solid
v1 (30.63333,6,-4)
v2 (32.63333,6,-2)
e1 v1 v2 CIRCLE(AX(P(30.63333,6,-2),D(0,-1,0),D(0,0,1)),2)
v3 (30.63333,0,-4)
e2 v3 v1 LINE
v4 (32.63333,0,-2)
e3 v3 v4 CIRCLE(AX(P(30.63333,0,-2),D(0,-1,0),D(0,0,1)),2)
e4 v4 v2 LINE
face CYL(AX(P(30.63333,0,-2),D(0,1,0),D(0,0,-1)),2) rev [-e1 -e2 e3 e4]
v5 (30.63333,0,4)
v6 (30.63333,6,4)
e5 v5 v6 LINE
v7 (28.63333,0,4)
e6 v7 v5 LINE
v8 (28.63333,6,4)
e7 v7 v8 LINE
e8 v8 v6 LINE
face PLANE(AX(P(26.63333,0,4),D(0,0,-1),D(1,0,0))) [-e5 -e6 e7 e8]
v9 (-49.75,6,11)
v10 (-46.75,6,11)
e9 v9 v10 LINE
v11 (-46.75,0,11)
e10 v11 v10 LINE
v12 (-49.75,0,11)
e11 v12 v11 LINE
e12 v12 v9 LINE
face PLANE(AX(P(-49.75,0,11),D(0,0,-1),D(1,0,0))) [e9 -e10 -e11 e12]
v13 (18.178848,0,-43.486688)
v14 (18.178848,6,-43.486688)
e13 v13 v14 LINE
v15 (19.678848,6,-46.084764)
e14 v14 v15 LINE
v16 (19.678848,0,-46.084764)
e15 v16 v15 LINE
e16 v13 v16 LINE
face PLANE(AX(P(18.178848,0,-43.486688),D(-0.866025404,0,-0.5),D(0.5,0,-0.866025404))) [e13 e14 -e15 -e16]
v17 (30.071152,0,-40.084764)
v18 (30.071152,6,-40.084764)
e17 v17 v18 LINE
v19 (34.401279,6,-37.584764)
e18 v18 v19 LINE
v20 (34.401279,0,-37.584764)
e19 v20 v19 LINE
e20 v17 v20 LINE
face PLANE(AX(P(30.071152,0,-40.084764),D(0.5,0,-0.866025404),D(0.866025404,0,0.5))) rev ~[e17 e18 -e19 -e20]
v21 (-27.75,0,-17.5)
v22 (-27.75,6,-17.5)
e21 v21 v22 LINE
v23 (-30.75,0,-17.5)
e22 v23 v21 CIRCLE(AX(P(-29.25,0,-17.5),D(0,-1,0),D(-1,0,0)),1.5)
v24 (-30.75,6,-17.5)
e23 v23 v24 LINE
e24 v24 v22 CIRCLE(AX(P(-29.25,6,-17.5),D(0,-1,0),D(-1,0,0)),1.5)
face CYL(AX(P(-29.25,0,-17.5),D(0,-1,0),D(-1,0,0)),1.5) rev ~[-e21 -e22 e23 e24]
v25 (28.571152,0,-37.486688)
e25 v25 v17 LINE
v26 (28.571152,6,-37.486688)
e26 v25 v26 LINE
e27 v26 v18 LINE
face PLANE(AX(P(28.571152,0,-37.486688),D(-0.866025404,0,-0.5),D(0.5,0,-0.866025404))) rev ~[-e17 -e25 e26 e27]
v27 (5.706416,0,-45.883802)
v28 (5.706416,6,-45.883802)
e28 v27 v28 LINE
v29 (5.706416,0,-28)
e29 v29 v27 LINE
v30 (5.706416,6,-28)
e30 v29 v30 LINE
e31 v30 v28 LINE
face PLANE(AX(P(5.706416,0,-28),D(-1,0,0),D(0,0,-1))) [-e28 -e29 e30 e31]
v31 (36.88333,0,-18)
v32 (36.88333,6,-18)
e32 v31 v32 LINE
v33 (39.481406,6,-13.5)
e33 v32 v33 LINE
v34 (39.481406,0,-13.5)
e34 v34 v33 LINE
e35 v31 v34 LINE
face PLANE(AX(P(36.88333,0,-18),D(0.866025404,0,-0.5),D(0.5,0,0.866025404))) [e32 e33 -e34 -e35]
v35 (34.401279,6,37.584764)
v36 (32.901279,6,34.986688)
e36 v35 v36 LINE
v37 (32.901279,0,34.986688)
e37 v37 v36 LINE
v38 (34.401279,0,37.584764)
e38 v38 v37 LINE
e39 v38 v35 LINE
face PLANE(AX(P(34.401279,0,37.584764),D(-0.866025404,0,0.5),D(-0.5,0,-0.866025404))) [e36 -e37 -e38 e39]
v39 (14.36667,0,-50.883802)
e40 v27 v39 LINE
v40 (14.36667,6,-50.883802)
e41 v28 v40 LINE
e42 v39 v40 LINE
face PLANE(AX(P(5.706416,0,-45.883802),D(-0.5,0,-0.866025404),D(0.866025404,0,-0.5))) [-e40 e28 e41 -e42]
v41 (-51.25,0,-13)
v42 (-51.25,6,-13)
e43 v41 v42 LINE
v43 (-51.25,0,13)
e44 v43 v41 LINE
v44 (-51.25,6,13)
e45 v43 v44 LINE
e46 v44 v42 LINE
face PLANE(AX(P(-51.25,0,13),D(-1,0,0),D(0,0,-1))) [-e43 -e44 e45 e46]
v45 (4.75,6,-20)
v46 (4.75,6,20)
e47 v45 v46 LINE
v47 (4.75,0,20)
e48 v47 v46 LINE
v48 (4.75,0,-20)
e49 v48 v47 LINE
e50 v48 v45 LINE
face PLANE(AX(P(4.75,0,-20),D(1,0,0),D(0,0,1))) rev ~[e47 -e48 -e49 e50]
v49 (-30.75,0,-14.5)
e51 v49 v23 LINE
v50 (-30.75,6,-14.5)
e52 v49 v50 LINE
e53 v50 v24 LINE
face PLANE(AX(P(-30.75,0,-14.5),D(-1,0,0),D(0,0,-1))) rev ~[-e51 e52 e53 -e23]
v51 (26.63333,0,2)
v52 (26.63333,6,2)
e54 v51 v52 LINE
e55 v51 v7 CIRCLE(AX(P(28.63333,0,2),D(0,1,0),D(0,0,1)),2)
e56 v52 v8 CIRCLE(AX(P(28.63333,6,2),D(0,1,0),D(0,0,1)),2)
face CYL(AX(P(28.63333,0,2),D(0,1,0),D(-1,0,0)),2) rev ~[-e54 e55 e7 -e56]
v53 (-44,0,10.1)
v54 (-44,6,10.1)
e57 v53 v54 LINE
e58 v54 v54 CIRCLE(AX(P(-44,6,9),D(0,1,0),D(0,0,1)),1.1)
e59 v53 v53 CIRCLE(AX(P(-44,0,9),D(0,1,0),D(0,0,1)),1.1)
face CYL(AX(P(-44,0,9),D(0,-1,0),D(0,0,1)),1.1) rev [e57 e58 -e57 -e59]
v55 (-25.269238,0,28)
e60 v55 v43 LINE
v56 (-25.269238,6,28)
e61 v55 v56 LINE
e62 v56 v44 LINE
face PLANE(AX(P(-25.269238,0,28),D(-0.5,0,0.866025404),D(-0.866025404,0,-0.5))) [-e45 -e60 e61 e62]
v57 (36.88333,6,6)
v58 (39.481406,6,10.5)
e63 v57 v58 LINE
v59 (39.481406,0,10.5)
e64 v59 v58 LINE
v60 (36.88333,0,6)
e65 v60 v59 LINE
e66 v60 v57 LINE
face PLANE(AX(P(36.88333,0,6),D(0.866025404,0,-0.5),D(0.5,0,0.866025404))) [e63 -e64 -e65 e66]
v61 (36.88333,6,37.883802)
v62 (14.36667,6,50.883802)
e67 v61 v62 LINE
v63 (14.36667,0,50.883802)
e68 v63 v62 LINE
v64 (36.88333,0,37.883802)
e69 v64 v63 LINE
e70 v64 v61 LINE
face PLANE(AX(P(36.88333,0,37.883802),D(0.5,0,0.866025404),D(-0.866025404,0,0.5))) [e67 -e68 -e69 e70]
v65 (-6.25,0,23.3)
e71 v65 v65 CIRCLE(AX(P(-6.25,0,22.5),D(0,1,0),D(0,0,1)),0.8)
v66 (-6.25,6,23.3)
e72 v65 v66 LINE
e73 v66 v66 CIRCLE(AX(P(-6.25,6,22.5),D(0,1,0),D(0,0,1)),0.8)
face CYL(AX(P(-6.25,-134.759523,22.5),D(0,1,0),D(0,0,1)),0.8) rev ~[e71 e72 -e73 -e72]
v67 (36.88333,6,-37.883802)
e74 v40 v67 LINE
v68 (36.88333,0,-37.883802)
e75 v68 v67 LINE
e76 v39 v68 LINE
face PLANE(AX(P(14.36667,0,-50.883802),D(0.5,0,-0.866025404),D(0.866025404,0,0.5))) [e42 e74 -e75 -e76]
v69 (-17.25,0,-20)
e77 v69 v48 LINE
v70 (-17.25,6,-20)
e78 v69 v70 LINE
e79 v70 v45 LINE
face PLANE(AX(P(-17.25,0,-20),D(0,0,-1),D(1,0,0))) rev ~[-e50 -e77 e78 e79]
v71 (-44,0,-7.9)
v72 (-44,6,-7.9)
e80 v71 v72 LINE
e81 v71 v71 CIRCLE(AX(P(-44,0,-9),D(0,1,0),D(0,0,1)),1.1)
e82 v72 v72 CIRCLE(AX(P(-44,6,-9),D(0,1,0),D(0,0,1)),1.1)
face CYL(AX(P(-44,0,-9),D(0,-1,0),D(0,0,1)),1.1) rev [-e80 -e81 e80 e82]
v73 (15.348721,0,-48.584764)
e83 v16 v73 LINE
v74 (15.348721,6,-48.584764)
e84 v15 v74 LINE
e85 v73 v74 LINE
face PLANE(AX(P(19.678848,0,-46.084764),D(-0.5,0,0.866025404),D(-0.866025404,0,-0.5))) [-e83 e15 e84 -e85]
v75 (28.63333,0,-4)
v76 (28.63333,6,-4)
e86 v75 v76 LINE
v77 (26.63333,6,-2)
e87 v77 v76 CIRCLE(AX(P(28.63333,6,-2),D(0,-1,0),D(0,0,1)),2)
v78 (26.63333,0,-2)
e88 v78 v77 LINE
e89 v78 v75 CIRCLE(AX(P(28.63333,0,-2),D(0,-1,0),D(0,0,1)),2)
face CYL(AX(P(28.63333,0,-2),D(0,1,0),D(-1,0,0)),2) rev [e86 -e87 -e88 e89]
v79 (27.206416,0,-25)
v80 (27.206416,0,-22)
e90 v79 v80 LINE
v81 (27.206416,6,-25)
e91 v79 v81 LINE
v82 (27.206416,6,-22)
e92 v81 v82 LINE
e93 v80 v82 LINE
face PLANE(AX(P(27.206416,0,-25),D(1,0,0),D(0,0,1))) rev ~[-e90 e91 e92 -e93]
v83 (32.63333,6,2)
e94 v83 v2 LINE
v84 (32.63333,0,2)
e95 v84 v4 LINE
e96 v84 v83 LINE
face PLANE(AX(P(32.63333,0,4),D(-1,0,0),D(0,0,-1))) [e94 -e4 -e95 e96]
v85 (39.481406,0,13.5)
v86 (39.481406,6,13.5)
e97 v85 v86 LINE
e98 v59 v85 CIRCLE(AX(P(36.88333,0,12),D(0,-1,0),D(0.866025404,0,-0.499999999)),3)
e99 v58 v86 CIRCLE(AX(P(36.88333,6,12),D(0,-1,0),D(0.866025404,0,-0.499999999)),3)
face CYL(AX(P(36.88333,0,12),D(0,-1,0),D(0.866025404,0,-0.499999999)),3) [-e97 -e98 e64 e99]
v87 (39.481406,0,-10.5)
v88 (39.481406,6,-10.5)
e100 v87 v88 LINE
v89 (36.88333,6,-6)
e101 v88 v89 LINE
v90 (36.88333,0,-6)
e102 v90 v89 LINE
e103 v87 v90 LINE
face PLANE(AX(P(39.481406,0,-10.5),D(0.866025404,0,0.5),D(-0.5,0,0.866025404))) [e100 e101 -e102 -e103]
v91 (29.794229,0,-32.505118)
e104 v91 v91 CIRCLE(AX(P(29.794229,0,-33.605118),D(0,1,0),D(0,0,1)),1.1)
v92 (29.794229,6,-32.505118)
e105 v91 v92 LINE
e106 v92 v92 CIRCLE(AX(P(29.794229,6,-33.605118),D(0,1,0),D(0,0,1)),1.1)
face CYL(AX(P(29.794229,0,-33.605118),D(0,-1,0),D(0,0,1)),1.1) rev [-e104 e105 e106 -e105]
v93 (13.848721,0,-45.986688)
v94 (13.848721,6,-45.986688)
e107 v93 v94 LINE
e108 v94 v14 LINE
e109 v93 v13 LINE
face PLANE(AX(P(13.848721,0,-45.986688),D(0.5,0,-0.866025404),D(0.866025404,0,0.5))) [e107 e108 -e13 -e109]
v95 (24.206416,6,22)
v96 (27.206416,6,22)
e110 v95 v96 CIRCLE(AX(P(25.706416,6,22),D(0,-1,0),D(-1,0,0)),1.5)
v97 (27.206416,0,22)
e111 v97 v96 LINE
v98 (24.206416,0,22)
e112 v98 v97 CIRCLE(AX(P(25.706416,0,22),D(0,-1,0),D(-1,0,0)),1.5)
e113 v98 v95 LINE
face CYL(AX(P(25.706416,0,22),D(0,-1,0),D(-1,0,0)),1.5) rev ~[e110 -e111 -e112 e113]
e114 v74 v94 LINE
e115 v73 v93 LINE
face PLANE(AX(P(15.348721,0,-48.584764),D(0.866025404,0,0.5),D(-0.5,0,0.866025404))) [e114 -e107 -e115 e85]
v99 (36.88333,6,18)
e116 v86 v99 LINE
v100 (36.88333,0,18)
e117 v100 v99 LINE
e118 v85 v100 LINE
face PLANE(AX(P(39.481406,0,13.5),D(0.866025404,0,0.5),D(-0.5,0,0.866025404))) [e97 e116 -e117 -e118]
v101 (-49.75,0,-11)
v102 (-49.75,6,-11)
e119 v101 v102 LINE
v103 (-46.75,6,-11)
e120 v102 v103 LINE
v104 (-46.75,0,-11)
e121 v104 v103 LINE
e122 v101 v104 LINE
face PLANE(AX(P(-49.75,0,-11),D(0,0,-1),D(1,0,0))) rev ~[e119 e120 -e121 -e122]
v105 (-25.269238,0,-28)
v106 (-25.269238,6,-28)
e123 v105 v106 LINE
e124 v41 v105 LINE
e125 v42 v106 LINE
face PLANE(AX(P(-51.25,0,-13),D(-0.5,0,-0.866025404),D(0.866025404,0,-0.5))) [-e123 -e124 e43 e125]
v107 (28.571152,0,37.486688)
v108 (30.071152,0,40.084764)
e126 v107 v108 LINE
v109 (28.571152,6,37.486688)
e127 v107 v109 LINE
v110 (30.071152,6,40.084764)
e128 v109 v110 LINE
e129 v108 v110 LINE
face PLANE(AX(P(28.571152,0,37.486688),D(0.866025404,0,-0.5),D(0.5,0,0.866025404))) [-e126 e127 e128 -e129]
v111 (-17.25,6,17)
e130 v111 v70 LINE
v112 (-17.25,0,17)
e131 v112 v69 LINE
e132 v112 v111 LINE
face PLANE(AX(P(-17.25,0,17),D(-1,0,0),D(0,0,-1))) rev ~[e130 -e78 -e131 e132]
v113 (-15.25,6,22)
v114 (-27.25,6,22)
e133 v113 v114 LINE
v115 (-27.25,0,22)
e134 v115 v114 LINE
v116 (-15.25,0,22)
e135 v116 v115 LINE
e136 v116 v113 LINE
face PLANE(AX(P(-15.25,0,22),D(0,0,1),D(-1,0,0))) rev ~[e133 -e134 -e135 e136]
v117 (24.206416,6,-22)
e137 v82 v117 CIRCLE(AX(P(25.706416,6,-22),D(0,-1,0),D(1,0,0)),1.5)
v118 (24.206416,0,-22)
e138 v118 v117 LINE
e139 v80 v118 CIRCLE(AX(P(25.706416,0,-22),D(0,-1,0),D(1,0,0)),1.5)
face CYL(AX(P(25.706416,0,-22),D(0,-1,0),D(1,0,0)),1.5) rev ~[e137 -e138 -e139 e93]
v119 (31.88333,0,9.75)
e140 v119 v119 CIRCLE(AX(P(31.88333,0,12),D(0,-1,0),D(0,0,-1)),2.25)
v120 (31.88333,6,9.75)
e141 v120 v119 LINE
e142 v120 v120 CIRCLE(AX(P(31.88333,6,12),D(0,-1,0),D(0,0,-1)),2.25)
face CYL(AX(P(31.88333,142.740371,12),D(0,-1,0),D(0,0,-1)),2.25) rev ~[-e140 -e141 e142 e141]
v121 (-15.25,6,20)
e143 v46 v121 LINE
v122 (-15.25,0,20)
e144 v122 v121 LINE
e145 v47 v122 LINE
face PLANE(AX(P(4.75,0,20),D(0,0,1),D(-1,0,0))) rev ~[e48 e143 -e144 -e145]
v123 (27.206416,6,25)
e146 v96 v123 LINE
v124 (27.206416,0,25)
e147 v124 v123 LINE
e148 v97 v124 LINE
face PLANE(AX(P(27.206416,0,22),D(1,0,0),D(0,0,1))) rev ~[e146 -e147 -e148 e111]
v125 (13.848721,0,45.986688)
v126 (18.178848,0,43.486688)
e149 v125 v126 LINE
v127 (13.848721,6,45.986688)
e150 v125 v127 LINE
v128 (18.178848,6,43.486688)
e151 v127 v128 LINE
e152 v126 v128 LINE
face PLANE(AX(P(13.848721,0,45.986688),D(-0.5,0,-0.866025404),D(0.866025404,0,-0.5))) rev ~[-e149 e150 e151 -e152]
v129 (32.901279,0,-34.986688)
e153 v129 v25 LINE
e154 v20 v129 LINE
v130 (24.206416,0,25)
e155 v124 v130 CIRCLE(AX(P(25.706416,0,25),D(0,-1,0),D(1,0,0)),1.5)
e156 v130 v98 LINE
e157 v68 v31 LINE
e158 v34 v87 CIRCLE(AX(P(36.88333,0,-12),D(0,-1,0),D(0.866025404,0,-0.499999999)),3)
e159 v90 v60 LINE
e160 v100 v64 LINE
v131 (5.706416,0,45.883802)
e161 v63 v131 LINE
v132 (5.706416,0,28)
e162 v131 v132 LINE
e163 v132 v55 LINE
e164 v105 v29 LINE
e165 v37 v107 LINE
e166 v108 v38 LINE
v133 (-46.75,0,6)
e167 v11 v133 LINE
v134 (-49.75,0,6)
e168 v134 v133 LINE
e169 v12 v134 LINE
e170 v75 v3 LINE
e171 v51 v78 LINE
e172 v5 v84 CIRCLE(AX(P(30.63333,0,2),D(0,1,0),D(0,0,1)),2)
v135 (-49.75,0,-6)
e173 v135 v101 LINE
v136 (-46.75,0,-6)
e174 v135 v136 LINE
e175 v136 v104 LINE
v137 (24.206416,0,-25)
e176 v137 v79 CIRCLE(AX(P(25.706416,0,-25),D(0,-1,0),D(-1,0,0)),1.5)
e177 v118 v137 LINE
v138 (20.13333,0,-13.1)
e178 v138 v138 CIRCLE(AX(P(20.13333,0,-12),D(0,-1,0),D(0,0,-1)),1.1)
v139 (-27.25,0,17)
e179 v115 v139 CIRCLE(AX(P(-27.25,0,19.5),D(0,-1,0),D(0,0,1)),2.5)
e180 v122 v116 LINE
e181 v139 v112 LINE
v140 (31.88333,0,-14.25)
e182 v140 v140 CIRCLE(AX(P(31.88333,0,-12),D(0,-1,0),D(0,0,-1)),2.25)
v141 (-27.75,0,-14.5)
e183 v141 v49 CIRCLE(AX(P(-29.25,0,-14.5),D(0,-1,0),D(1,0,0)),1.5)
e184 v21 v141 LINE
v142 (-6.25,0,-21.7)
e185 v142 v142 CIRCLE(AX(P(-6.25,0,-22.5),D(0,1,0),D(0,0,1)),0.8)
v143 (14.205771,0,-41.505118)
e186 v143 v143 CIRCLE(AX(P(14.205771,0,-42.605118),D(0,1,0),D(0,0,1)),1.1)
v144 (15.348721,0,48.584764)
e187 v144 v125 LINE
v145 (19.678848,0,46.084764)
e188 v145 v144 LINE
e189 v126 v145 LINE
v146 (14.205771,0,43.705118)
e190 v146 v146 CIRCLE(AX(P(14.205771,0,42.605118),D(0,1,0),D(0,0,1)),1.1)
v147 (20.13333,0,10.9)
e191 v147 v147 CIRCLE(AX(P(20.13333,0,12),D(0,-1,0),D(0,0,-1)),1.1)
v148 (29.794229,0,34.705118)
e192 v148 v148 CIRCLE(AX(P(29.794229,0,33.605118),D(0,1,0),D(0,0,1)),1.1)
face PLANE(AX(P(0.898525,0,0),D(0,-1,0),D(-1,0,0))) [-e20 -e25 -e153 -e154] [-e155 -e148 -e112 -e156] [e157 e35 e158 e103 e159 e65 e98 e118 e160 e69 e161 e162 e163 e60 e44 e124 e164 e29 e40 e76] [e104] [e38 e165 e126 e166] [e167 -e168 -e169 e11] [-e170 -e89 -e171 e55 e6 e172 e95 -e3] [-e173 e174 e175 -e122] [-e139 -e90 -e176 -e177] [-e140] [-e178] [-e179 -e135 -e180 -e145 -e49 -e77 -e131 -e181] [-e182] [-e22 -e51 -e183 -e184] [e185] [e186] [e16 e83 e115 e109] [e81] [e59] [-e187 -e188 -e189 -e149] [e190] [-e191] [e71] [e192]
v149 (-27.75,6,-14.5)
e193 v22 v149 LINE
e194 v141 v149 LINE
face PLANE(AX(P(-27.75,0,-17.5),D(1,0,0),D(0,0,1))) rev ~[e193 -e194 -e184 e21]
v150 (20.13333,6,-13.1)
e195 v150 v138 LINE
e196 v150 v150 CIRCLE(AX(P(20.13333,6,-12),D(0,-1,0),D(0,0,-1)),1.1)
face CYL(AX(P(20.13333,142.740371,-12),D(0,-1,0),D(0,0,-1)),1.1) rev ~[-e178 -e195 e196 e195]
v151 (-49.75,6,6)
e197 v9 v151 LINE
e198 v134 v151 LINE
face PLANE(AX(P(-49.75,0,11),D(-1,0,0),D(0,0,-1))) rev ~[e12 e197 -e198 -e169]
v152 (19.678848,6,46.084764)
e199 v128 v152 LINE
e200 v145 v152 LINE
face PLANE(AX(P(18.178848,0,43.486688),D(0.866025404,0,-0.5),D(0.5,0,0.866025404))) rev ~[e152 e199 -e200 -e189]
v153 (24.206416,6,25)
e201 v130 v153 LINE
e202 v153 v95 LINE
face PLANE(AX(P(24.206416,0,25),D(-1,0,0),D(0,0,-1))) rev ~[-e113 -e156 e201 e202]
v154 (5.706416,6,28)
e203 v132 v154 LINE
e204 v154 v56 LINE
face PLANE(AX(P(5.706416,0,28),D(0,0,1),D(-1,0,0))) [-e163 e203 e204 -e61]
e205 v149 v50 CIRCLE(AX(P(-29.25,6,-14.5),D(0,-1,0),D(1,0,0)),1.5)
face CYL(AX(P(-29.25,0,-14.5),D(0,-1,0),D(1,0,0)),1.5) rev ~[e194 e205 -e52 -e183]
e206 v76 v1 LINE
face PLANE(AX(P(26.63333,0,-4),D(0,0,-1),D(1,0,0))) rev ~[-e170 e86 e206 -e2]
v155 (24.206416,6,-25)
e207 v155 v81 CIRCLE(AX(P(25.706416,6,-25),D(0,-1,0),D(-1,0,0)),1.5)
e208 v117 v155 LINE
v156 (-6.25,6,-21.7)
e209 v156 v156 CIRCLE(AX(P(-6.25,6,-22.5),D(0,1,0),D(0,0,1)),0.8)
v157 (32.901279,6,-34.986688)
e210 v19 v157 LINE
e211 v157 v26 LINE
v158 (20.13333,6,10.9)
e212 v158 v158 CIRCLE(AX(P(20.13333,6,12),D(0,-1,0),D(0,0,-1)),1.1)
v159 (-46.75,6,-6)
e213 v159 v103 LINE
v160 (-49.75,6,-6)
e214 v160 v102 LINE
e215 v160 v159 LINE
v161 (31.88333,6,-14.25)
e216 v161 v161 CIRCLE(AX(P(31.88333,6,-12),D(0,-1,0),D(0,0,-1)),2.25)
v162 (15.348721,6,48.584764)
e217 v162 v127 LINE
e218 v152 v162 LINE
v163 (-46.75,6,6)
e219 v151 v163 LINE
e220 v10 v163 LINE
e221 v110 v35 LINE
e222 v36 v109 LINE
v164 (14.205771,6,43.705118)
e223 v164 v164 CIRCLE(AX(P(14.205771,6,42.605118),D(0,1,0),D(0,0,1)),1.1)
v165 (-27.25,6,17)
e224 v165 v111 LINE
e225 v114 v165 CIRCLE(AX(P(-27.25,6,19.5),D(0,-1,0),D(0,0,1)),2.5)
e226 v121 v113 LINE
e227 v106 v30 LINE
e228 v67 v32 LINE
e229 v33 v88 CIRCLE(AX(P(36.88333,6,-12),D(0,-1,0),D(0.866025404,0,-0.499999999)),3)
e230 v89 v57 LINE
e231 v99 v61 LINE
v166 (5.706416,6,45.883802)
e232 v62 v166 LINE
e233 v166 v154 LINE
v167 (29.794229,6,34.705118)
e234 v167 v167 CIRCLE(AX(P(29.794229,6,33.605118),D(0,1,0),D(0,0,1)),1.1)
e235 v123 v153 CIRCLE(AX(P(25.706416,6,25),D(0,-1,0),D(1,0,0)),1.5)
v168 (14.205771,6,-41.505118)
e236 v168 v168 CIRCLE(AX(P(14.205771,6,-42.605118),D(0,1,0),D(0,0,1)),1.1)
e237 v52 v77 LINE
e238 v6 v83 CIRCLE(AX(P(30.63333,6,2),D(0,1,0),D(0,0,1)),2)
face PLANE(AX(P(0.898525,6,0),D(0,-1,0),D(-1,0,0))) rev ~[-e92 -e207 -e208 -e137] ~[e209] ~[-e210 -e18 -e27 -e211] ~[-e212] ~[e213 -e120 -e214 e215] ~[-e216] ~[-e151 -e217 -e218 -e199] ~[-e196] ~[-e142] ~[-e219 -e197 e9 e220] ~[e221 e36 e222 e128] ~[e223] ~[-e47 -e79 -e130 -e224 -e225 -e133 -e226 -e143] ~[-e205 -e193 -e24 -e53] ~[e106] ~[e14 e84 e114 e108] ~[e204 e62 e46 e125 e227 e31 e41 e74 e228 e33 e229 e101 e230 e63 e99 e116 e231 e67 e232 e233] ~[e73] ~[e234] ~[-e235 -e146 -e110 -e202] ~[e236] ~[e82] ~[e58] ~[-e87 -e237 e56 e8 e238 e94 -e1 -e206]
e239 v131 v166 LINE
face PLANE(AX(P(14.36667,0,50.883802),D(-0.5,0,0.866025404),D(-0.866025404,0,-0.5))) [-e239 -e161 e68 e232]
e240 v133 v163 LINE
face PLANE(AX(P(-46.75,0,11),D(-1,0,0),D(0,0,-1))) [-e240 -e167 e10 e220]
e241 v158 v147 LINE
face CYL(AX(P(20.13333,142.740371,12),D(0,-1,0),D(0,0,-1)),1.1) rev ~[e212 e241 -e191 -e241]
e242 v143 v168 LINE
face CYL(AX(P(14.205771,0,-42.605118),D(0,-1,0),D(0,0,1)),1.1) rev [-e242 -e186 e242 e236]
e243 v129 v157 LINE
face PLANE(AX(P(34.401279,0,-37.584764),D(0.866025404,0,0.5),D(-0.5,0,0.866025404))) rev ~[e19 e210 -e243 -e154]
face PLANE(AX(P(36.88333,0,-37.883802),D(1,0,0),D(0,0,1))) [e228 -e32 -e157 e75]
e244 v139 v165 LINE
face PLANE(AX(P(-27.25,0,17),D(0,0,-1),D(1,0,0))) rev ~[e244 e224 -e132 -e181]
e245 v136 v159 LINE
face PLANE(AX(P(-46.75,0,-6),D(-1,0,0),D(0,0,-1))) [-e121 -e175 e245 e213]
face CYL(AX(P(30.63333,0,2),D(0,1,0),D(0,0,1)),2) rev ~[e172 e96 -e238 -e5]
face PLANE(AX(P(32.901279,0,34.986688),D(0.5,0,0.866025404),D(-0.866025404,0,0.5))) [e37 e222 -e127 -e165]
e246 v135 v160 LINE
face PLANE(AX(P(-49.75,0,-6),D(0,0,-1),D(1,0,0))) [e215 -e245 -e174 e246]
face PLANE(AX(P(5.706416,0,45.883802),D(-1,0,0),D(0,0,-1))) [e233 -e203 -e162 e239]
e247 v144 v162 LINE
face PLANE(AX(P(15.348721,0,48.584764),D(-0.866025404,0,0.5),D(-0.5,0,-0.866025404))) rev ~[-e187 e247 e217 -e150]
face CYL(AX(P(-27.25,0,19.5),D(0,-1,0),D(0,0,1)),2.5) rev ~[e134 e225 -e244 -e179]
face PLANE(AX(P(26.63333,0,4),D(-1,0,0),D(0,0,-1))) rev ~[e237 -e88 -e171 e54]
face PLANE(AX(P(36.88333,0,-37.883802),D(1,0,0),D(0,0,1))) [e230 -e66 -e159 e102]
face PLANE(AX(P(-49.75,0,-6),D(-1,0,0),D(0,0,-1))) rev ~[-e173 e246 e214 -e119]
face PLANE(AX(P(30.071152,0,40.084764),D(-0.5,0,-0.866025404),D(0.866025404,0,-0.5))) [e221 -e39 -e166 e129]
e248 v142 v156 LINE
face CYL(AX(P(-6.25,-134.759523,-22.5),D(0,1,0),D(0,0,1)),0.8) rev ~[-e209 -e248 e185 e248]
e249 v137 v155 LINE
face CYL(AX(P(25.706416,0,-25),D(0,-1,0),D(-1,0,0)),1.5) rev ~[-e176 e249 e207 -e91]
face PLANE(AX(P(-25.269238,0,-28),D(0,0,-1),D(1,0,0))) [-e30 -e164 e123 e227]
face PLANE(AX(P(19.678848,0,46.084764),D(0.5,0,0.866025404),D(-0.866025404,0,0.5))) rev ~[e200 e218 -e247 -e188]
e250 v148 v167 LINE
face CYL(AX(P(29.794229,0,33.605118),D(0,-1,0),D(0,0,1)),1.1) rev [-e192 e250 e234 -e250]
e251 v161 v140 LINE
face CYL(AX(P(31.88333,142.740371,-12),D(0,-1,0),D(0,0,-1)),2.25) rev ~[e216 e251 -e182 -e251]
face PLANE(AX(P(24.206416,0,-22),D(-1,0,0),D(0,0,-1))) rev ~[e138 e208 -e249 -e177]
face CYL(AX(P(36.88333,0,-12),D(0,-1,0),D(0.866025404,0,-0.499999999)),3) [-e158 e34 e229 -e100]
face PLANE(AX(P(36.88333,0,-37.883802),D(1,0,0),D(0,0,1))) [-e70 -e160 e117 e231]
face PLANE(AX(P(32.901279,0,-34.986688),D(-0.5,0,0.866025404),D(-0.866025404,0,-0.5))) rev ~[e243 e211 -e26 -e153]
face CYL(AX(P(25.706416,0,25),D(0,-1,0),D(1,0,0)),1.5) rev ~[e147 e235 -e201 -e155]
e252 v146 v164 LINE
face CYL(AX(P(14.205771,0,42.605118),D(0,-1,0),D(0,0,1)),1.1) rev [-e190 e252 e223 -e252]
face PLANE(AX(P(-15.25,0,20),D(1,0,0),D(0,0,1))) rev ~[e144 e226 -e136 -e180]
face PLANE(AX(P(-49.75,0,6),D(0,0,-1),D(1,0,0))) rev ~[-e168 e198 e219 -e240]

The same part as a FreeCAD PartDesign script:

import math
import FreeCAD as App
import Part
import Sketcher
Q = App.Units.Quantity


def edges_at(feature, points):
    """Names of the edges that pass closest to the given points."""
    edges = feature.Shape.Edges
    near = lambda p: min(range(len(edges)), key=lambda i: edges[i].distToShape(Part.Vertex(*p))[0])
    return sorted({f"Edge{near(p) + 1}" for p in points})

doc = App.newDocument("Part")
params = doc.addObject("Spreadsheet::Sheet", "Params")
for row, (alias, value) in enumerate([
    ("sketch1_diameter", "2.2 mm"),
    ("sketch1_radius", "1.5 mm"),
    ("sketch1_radius2", "2.5 mm"),
    ("sketch1_width", "20 mm"),
    ("sketch1_width2", "12 mm"),
    ("pad1_length", "6 mm"),
    ("sketch2_diameter", "1.6 mm"),
    ("hole_diameter", "1.6 mm"),
    ("sketch3_radius", "3 mm"),
    ("sketch3_height", "12 mm"),
    ("pad2_length", "6 mm"),
    ("fillet_radius", "2 mm"),
    ("sketch4_diameter", "2.2 mm"),
    ("hole2_diameter", "2.2 mm"),
    ("sketch5_diameter", "4.5 mm"),
    ("hole3_diameter", "4.5 mm"),
], start=1):
    params.set(f"A{row}", alias)
    params.set(f"B{row}", "=" + value)
    params.setAlias(f"B{row}", alias)

body = doc.addObject("PartDesign::Body", "Body")

# Sketch on XZ plane
sketch1 = body.newObject("Sketcher::SketchObject", "Sketch")
sketch1.AttachmentSupport = (doc.getObject("XZ_Plane"), [""])
sketch1.MapMode = "FlatFace"
sketch1.addGeometry(Part.LineSegment(App.Vector(36.9, -37.9, 0), App.Vector(14.4, -50.9, 0)), False)
sketch1.addGeometry(Part.LineSegment(App.Vector(14.4, -50.9, 0), App.Vector(5.7, -45.9, 0)), False)
sketch1.addGeometry(Part.LineSegment(App.Vector(5.7, -45.9, 0), App.Vector(5.7, -28, 0)), False)
sketch1.addGeometry(Part.LineSegment(App.Vector(5.7, -28, 0), App.Vector(-25.3, -28, 0)), False)
sketch1.addGeometry(Part.LineSegment(App.Vector(-25.3, -28, 0), App.Vector(-51.2, -13, 0)), False)
sketch1.addGeometry(Part.LineSegment(App.Vector(-51.2, -13, 0), App.Vector(-51.2, 13, 0)), False)
sketch1.addGeometry(Part.LineSegment(App.Vector(-51.2, 13, 0), App.Vector(-25.3, 28, 0)), False)
sketch1.addGeometry(Part.LineSegment(App.Vector(-25.3, 28, 0), App.Vector(5.7, 28, 0)), False)
sketch1.addGeometry(Part.LineSegment(App.Vector(5.7, 28, 0), App.Vector(5.7, 45.9, 0)), False)
sketch1.addGeometry(Part.LineSegment(App.Vector(5.7, 45.9, 0), App.Vector(14.4, 50.9, 0)), False)
sketch1.addGeometry(Part.LineSegment(App.Vector(14.4, 50.9, 0), App.Vector(36.9, 37.9, 0)), False)
sketch1.addGeometry(Part.LineSegment(App.Vector(36.9, 37.9, 0), App.Vector(36.9, -37.9, 0)), False)
sketch1.addGeometry(Part.LineSegment(App.Vector(34.4, 37.6, 0), App.Vector(30.1, 40.1, 0)), False)
sketch1.addGeometry(Part.LineSegment(App.Vector(30.1, 40.1, 0), App.Vector(28.6, 37.5, 0)), False)
sketch1.addGeometry(Part.LineSegment(App.Vector(28.6, 37.5, 0), App.Vector(32.9, 35, 0)), False)
sketch1.addGeometry(Part.LineSegment(App.Vector(32.9, 35, 0), App.Vector(34.4, 37.6, 0)), False)
sketch1.addGeometry(Part.LineSegment(App.Vector(18.2, 43.5, 0), App.Vector(19.7, 46.1, 0)), False)
sketch1.addGeometry(Part.LineSegment(App.Vector(19.7, 46.1, 0), App.Vector(15.3, 48.6, 0)), False)
sketch1.addGeometry(Part.LineSegment(App.Vector(15.3, 48.6, 0), App.Vector(13.8, 46, 0)), False)
sketch1.addGeometry(Part.LineSegment(App.Vector(13.8, 46, 0), App.Vector(18.2, 43.5, 0)), False)
sketch1.addGeometry(Part.Circle(App.Vector(14.2, 42.6, 0), App.Vector(0, 0, 1), 1.1), False)
sketch1.addGeometry(Part.Circle(App.Vector(29.8, 33.6, 0), App.Vector(0, 0, 1), 1.1), False)
sketch1.addGeometry(Part.LineSegment(App.Vector(24.2, 25, 0), App.Vector(24.2, 22, 0)), False)
sketch1.addGeometry(Part.ArcOfCircle(Part.Circle(App.Vector(25.7, 22, 0), App.Vector(0, 0, 1), 1.5), math.radians(180), math.radians(360)), False)
sketch1.addGeometry(Part.LineSegment(App.Vector(27.2, 22, 0), App.Vector(27.2, 25, 0)), False)
sketch1.addGeometry(Part.ArcOfCircle(Part.Circle(App.Vector(25.7, 25, 0), App.Vector(0, 0, 1), 1.5), math.radians(0), math.radians(180)), False)
sketch1.addGeometry(Part.LineSegment(App.Vector(4.8, 20, 0), App.Vector(-15.2, 20, 0)), False)
sketch1.addGeometry(Part.LineSegment(App.Vector(-15.2, 20, 0), App.Vector(-15.2, 22, 0)), False)
sketch1.addGeometry(Part.LineSegment(App.Vector(-15.2, 22, 0), App.Vector(-27.2, 22, 0)), False)
sketch1.addGeometry(Part.ArcOfCircle(Part.Circle(App.Vector(-27.2, 19.5, 0), App.Vector(0, 0, 1), 2.5), math.radians(90), math.radians(270)), False)
sketch1.addGeometry(Part.LineSegment(App.Vector(-27.2, 17, 0), App.Vector(-17.2, 17, 0)), False)
sketch1.addGeometry(Part.LineSegment(App.Vector(-17.2, 17, 0), App.Vector(-17.2, -20, 0)), False)
sketch1.addGeometry(Part.LineSegment(App.Vector(-17.2, -20, 0), App.Vector(4.8, -20, 0)), False)
sketch1.addGeometry(Part.LineSegment(App.Vector(4.8, -20, 0), App.Vector(4.8, 20, 0)), False)
sketch1.addGeometry(Part.Circle(App.Vector(-44, 9, 0), App.Vector(0, 0, 1), 1.1), False)
sketch1.addGeometry(Part.LineSegment(App.Vector(-49.8, 11, 0), App.Vector(-49.8, 6, 0)), False)
sketch1.addGeometry(Part.LineSegment(App.Vector(-49.8, 6, 0), App.Vector(-46.8, 6, 0)), False)
sketch1.addGeometry(Part.LineSegment(App.Vector(-46.8, 6, 0), App.Vector(-46.8, 11, 0)), False)
sketch1.addGeometry(Part.LineSegment(App.Vector(-46.8, 11, 0), App.Vector(-49.8, 11, 0)), False)
sketch1.addGeometry(Part.LineSegment(App.Vector(26.6, 4, 0), App.Vector(26.6, -4, 0)), False)
sketch1.addGeometry(Part.LineSegment(App.Vector(26.6, -4, 0), App.Vector(32.6, -4, 0)), False)
sketch1.addGeometry(Part.LineSegment(App.Vector(32.6, -4, 0), App.Vector(32.6, 4, 0)), False)
sketch1.addGeometry(Part.LineSegment(App.Vector(32.6, 4, 0), App.Vector(26.6, 4, 0)), False)
sketch1.addGeometry(Part.LineSegment(App.Vector(24.2, -22, 0), App.Vector(24.2, -25, 0)), False)
sketch1.addGeometry(Part.ArcOfCircle(Part.Circle(App.Vector(25.7, -25, 0), App.Vector(0, 0, 1), 1.5), math.radians(180), math.radians(360)), False)
sketch1.addGeometry(Part.LineSegment(App.Vector(27.2, -25, 0), App.Vector(27.2, -22, 0)), False)
sketch1.addGeometry(Part.ArcOfCircle(Part.Circle(App.Vector(25.7, -22, 0), App.Vector(0, 0, 1), 1.5), math.radians(0), math.radians(180)), False)
sketch1.addGeometry(Part.Circle(App.Vector(29.8, -33.6, 0), App.Vector(0, 0, 1), 1.1), False)
sketch1.addGeometry(Part.LineSegment(App.Vector(30.1, -40.1, 0), App.Vector(34.4, -37.6, 0)), False)
sketch1.addGeometry(Part.LineSegment(App.Vector(34.4, -37.6, 0), App.Vector(32.9, -35, 0)), False)
sketch1.addGeometry(Part.LineSegment(App.Vector(32.9, -35, 0), App.Vector(28.6, -37.5, 0)), False)
sketch1.addGeometry(Part.LineSegment(App.Vector(28.6, -37.5, 0), App.Vector(30.1, -40.1, 0)), False)
sketch1.addGeometry(Part.Circle(App.Vector(14.2, -42.6, 0), App.Vector(0, 0, 1), 1.1), False)
sketch1.addGeometry(Part.LineSegment(App.Vector(15.3, -48.6, 0), App.Vector(19.7, -46.1, 0)), False)
sketch1.addGeometry(Part.LineSegment(App.Vector(19.7, -46.1, 0), App.Vector(18.2, -43.5, 0)), False)
sketch1.addGeometry(Part.LineSegment(App.Vector(18.2, -43.5, 0), App.Vector(13.8, -46, 0)), False)
sketch1.addGeometry(Part.LineSegment(App.Vector(13.8, -46, 0), App.Vector(15.3, -48.6, 0)), False)
sketch1.addGeometry(Part.Circle(App.Vector(-44, -9, 0), App.Vector(0, 0, 1), 1.1), False)
sketch1.addGeometry(Part.LineSegment(App.Vector(-49.8, -6, 0), App.Vector(-49.8, -11, 0)), False)
sketch1.addGeometry(Part.LineSegment(App.Vector(-49.8, -11, 0), App.Vector(-46.8, -11, 0)), False)
sketch1.addGeometry(Part.LineSegment(App.Vector(-46.8, -11, 0), App.Vector(-46.8, -6, 0)), False)
sketch1.addGeometry(Part.LineSegment(App.Vector(-46.8, -6, 0), App.Vector(-49.8, -6, 0)), False)
sketch1.addGeometry(Part.LineSegment(App.Vector(-30.8, -14.5, 0), App.Vector(-30.8, -17.5, 0)), False)
sketch1.addGeometry(Part.ArcOfCircle(Part.Circle(App.Vector(-29.2, -17.5, 0), App.Vector(0, 0, 1), 1.5), math.radians(180), math.radians(360)), False)
sketch1.addGeometry(Part.LineSegment(App.Vector(-27.8, -17.5, 0), App.Vector(-27.8, -14.5, 0)), False)
sketch1.addGeometry(Part.ArcOfCircle(Part.Circle(App.Vector(-29.2, -14.5, 0), App.Vector(0, 0, 1), 1.5), math.radians(0), math.radians(180)), False)
sketch1.addConstraint(Sketcher.Constraint("Coincident", 0, 2, 1, 1))
sketch1.addConstraint(Sketcher.Constraint("Coincident", 1, 2, 2, 1))
sketch1.addConstraint(Sketcher.Constraint("Coincident", 2, 2, 3, 1))
sketch1.addConstraint(Sketcher.Constraint("Coincident", 3, 2, 4, 1))
sketch1.addConstraint(Sketcher.Constraint("Coincident", 4, 2, 5, 1))
sketch1.addConstraint(Sketcher.Constraint("Coincident", 5, 2, 6, 1))
sketch1.addConstraint(Sketcher.Constraint("Coincident", 6, 2, 7, 1))
sketch1.addConstraint(Sketcher.Constraint("Coincident", 7, 2, 8, 1))
sketch1.addConstraint(Sketcher.Constraint("Coincident", 8, 2, 9, 1))
sketch1.addConstraint(Sketcher.Constraint("Coincident", 9, 2, 10, 1))
sketch1.addConstraint(Sketcher.Constraint("Coincident", 10, 2, 11, 1))
sketch1.addConstraint(Sketcher.Constraint("Coincident", 11, 2, 0, 1))
sketch1.addConstraint(Sketcher.Constraint("Coincident", 12, 2, 13, 1))
sketch1.addConstraint(Sketcher.Constraint("Coincident", 13, 2, 14, 1))
sketch1.addConstraint(Sketcher.Constraint("Coincident", 14, 2, 15, 1))
sketch1.addConstraint(Sketcher.Constraint("Coincident", 15, 2, 12, 1))
sketch1.addConstraint(Sketcher.Constraint("Coincident", 16, 2, 17, 1))
sketch1.addConstraint(Sketcher.Constraint("Coincident", 17, 2, 18, 1))
sketch1.addConstraint(Sketcher.Constraint("Coincident", 18, 2, 19, 1))
sketch1.addConstraint(Sketcher.Constraint("Coincident", 19, 2, 16, 1))
sketch1.addConstraint(Sketcher.Constraint("Tangent", 22, 2, 23, 1))
sketch1.addConstraint(Sketcher.Constraint("Tangent", 23, 2, 24, 1))
sketch1.addConstraint(Sketcher.Constraint("Tangent", 24, 2, 25, 1))
sketch1.addConstraint(Sketcher.Constraint("Tangent", 25, 2, 22, 1))
sketch1.addConstraint(Sketcher.Constraint("Coincident", 26, 2, 27, 1))
sketch1.addConstraint(Sketcher.Constraint("Coincident", 27, 2, 28, 1))
sketch1.addConstraint(Sketcher.Constraint("Tangent", 28, 2, 29, 1))
sketch1.addConstraint(Sketcher.Constraint("Tangent", 29, 2, 30, 1))
sketch1.addConstraint(Sketcher.Constraint("Coincident", 30, 2, 31, 1))
sketch1.addConstraint(Sketcher.Constraint("Coincident", 31, 2, 32, 1))
sketch1.addConstraint(Sketcher.Constraint("Coincident", 32, 2, 33, 1))
sketch1.addConstraint(Sketcher.Constraint("Coincident", 33, 2, 26, 1))
sketch1.addConstraint(Sketcher.Constraint("Coincident", 35, 2, 36, 1))
sketch1.addConstraint(Sketcher.Constraint("Coincident", 36, 2, 37, 1))
sketch1.addConstraint(Sketcher.Constraint("Coincident", 37, 2, 38, 1))
sketch1.addConstraint(Sketcher.Constraint("Coincident", 38, 2, 35, 1))
sketch1.addConstraint(Sketcher.Constraint("Coincident", 39, 2, 40, 1))
sketch1.addConstraint(Sketcher.Constraint("Coincident", 40, 2, 41, 1))
sketch1.addConstraint(Sketcher.Constraint("Coincident", 41, 2, 42, 1))
sketch1.addConstraint(Sketcher.Constraint("Coincident", 42, 2, 39, 1))
sketch1.addConstraint(Sketcher.Constraint("Tangent", 43, 2, 44, 1))
sketch1.addConstraint(Sketcher.Constraint("Tangent", 44, 2, 45, 1))
sketch1.addConstraint(Sketcher.Constraint("Tangent", 45, 2, 46, 1))
sketch1.addConstraint(Sketcher.Constraint("Tangent", 46, 2, 43, 1))
sketch1.addConstraint(Sketcher.Constraint("Coincident", 48, 2, 49, 1))
sketch1.addConstraint(Sketcher.Constraint("Coincident", 49, 2, 50, 1))
sketch1.addConstraint(Sketcher.Constraint("Coincident", 50, 2, 51, 1))
sketch1.addConstraint(Sketcher.Constraint("Coincident", 51, 2, 48, 1))
sketch1.addConstraint(Sketcher.Constraint("Coincident", 53, 2, 54, 1))
sketch1.addConstraint(Sketcher.Constraint("Coincident", 54, 2, 55, 1))
sketch1.addConstraint(Sketcher.Constraint("Coincident", 55, 2, 56, 1))
sketch1.addConstraint(Sketcher.Constraint("Coincident", 56, 2, 53, 1))
sketch1.addConstraint(Sketcher.Constraint("Coincident", 58, 2, 59, 1))
sketch1.addConstraint(Sketcher.Constraint("Coincident", 59, 2, 60, 1))
sketch1.addConstraint(Sketcher.Constraint("Coincident", 60, 2, 61, 1))
sketch1.addConstraint(Sketcher.Constraint("Coincident", 61, 2, 58, 1))
sketch1.addConstraint(Sketcher.Constraint("Tangent", 62, 2, 63, 1))
sketch1.addConstraint(Sketcher.Constraint("Tangent", 63, 2, 64, 1))
sketch1.addConstraint(Sketcher.Constraint("Tangent", 64, 2, 65, 1))
sketch1.addConstraint(Sketcher.Constraint("Tangent", 65, 2, 62, 1))
sketch1.addConstraint(Sketcher.Constraint("Vertical", 2))
sketch1.addConstraint(Sketcher.Constraint("Horizontal", 3))
sketch1.addConstraint(Sketcher.Constraint("Vertical", 5))
sketch1.addConstraint(Sketcher.Constraint("Horizontal", 7))
sketch1.addConstraint(Sketcher.Constraint("Vertical", 8))
sketch1.addConstraint(Sketcher.Constraint("Vertical", 11))
sketch1.addConstraint(Sketcher.Constraint("Vertical", 22))
sketch1.addConstraint(Sketcher.Constraint("Vertical", 24))
sketch1.addConstraint(Sketcher.Constraint("Horizontal", 26))
sketch1.addConstraint(Sketcher.Constraint("Vertical", 27))
sketch1.addConstraint(Sketcher.Constraint("Horizontal", 28))
sketch1.addConstraint(Sketcher.Constraint("Horizontal", 30))
sketch1.addConstraint(Sketcher.Constraint("Vertical", 31))
sketch1.addConstraint(Sketcher.Constraint("Horizontal", 32))
sketch1.addConstraint(Sketcher.Constraint("Vertical", 33))
sketch1.addConstraint(Sketcher.Constraint("Vertical", 35))
sketch1.addConstraint(Sketcher.Constraint("Horizontal", 36))
sketch1.addConstraint(Sketcher.Constraint("Vertical", 37))
sketch1.addConstraint(Sketcher.Constraint("Horizontal", 38))
sketch1.addConstraint(Sketcher.Constraint("Vertical", 39))
sketch1.addConstraint(Sketcher.Constraint("Horizontal", 40))
sketch1.addConstraint(Sketcher.Constraint("Vertical", 41))
sketch1.addConstraint(Sketcher.Constraint("Horizontal", 42))
sketch1.addConstraint(Sketcher.Constraint("Vertical", 43))
sketch1.addConstraint(Sketcher.Constraint("Vertical", 45))
sketch1.addConstraint(Sketcher.Constraint("Vertical", 58))
sketch1.addConstraint(Sketcher.Constraint("Horizontal", 59))
sketch1.addConstraint(Sketcher.Constraint("Vertical", 60))
sketch1.addConstraint(Sketcher.Constraint("Horizontal", 61))
sketch1.addConstraint(Sketcher.Constraint("Vertical", 62))
sketch1.addConstraint(Sketcher.Constraint("Vertical", 64))
sketch1.addConstraint(Sketcher.Constraint("Equal", 20, 21))
sketch1.addConstraint(Sketcher.Constraint("Equal", 21, 34))
sketch1.addConstraint(Sketcher.Constraint("Equal", 25, 44))
sketch1.addConstraint(Sketcher.Constraint("Equal", 34, 47))
sketch1.addConstraint(Sketcher.Constraint("Equal", 47, 52))
sketch1.addConstraint(Sketcher.Constraint("Equal", 52, 57))
sketch1.addConstraint(Sketcher.Constraint("Equal", 46, 63))
sketch1.addConstraint(Sketcher.Constraint("Symmetric", 25, 3, 44, 3, -1))
sketch1.addConstraint(Sketcher.Constraint("Symmetric", 21, 3, 47, 3, -1))
sketch1.addConstraint(Sketcher.Constraint("Symmetric", 20, 3, 52, 3, -1))
sketch1.addConstraint(Sketcher.Constraint("Symmetric", 34, 3, 57, 3, -1))
sketch1.addConstraint(Sketcher.Constraint("Symmetric", 3, 2, 6, 2, -1))
sketch1.addConstraint(Sketcher.Constraint("Symmetric", 1, 2, 8, 2, -1))
sketch1.addConstraint(Sketcher.Constraint("Symmetric", 0, 2, 9, 2, -1))
sketch1.addConstraint(Sketcher.Constraint("Symmetric", 15, 2, 48, 2, -1))
sketch1.addConstraint(Sketcher.Constraint("Symmetric", 14, 2, 49, 2, -1))
sketch1.addConstraint(Sketcher.Constraint("Symmetric", 13, 2, 50, 2, -1))
sketch1.addConstraint(Sketcher.Constraint("Symmetric", 12, 2, 51, 2, -1))
sketch1.addConstraint(Sketcher.Constraint("Symmetric", 16, 2, 53, 2, -1))
sketch1.addConstraint(Sketcher.Constraint("Symmetric", 19, 2, 54, 2, -1))
sketch1.addConstraint(Sketcher.Constraint("Symmetric", 18, 2, 55, 2, -1))
sketch1.addConstraint(Sketcher.Constraint("Symmetric", 17, 2, 56, 2, -1))
sketch1.addConstraint(Sketcher.Constraint("Symmetric", 38, 2, 58, 2, -1))
sketch1.addConstraint(Sketcher.Constraint("Symmetric", 36, 2, 60, 2, -1))
sketch1.addConstraint(Sketcher.Constraint("Parallel", 1, 4))
sketch1.addConstraint(Sketcher.Constraint("Parallel", 0, 6))
sketch1.addConstraint(Sketcher.Constraint("Parallel", 6, 9))
sketch1.addConstraint(Sketcher.Constraint("Parallel", 4, 10))
sketch1.addConstraint(Sketcher.Constraint("Parallel", 10, 12))
sketch1.addConstraint(Sketcher.Constraint("Perpendicular", 12, 13))
sketch1.addConstraint(Sketcher.Constraint("Perpendicular", 13, 14))
sketch1.addConstraint(Sketcher.Constraint("Perpendicular", 14, 15))
sketch1.addConstraint(Sketcher.Constraint("Parallel", 15, 16))
sketch1.addConstraint(Sketcher.Constraint("Perpendicular", 16, 17))
sketch1.addConstraint(Sketcher.Constraint("Perpendicular", 17, 18))
sketch1.addConstraint(Sketcher.Constraint("Perpendicular", 18, 19))
sketch1.addConstraint(Sketcher.Constraint("Horizontal", 23, 2, 27, 2))
sketch1.addConstraint(Sketcher.Constraint("Equal", 61, 22))
sketch1.addConstraint(Sketcher.Constraint("Equal", 24, 43))
sketch1.addConstraint(Sketcher.Constraint("Equal", 45, 62))
sketch1.addConstraint(Sketcher.Constraint("Equal", 15, 16))
sketch1.addConstraint(Sketcher.Constraint("Equal", 14, 17))
sketch1.addConstraint(Sketcher.Constraint("Diameter", 20, Q("2.2 mm")))
sketch1.addConstraint(Sketcher.Constraint("Radius", 23, Q("1.5 mm")))
sketch1.addConstraint(Sketcher.Constraint("Radius", 29, Q("2.5 mm")))
sketch1.addConstraint(Sketcher.Constraint("DistanceX", 26, 2, 26, 1, Q("20 mm")))
sketch1.addConstraint(Sketcher.Constraint("DistanceX", 28, 2, 28, 1, Q("12 mm")))
sketch1.addConstraint(Sketcher.Constraint("DistanceX", 30, 1, 30, 2, Q("10 mm")))
sketch1.addConstraint(Sketcher.Constraint("DistanceX", 36, 1, 36, 2, Q("3 mm")))
sketch1.addConstraint(Sketcher.Constraint("DistanceX", 40, 1, 40, 2, Q("6 mm")))
sketch1.addConstraint(Sketcher.Constraint("DistanceY", 5, 1, 5, 2, Q("26 mm")))
sketch1.addConstraint(Sketcher.Constraint("DistanceY", 27, 1, 27, 2, Q("2 mm")))
sketch1.addConstraint(Sketcher.Constraint("DistanceY", 31, 2, 31, 1, Q("37 mm")))
sketch1.addConstraint(Sketcher.Constraint("DistanceY", 35, 2, 35, 1, Q("5 mm")))
sketch1.addConstraint(Sketcher.Constraint("DistanceY", 39, 2, 39, 1, Q("8 mm")))
sketch1.addConstraint(Sketcher.Constraint("Angle", 0, Q("-150 deg")))
sketch1.addConstraint(Sketcher.Constraint("Distance", 0, Q("26 mm")))
sketch1.addConstraint(Sketcher.Constraint("Distance", 1, Q("10 mm")))
sketch1.addConstraint(Sketcher.Constraint("Distance", 4, Q("30 mm")))
sketch1.addConstraint(Sketcher.Constraint("Distance", 12, Q("5 mm")))
sketch1.addConstraint(Sketcher.Constraint("Distance", 13, Q("3 mm")))
sketch1.addConstraint(Sketcher.Constraint("DistanceY", -1, 1, 23, 3, Q("22 mm")))
sketch1.addConstraint(Sketcher.Constraint("DistanceX", 34, 3, -1, 1, Q("44 mm")))
sketch1.addConstraint(Sketcher.Constraint("DistanceY", -1, 1, 34, 3, Q("9 mm")))
sketch1.addConstraint(Sketcher.Constraint("DistanceY", -1, 1, 35, 2, Q("6 mm")))
sketch1.addConstraint(Sketcher.Constraint("DistanceY", 39, 2, -1, 1, Q("4 mm")))
sketch1.addConstraint(Sketcher.Constraint("DistanceY", 63, 3, -1, 1, Q("17.5 mm")))
sketch1.addConstraint(Sketcher.Constraint("DistanceX", 29, 3, -1, 1, Q("27.25 mm")))
sketch1.addConstraint(Sketcher.Constraint("DistanceX", 63, 3, -1, 1, Q("29.25 mm")))
sketch1.addConstraint(Sketcher.Constraint("DistanceX", 4, 2, -1, 1, Q("51.25 mm")))
sketch1.addConstraint(Sketcher.Constraint("DistanceX", 35, 2, -1, 1, Q("49.75 mm")))
sketch1.addConstraint(Sketcher.Constraint("DistanceY", 2, 1, 2, 2, Q("17.883802 mm")))
sketch1.addConstraint(Sketcher.Constraint("DistanceX", 3, 2, 3, 1, Q("30.975654 mm")))
sketch1.addConstraint(Sketcher.Constraint("DistanceX", -1, 1, 20, 3, Q("14.205771 mm")))
sketch1.addConstraint(Sketcher.Constraint("DistanceX", -1, 1, 21, 3, Q("29.794229 mm")))
sketch1.addConstraint(Sketcher.Constraint("DistanceX", -1, 1, 14, 2, Q("32.901279 mm")))
sketch1.addConstraint(Sketcher.Constraint("DistanceX", -1, 1, 17, 2, Q("15.348721 mm")))
sketch1.addConstraint(Sketcher.Constraint("DistanceX", -1, 1, 39, 2, Q("26.63333 mm")))
sketch1.addConstraint(Sketcher.Constraint("DistanceY", -1, 1, 20, 3, Q("42.605118 mm")))
sketch1.addConstraint(Sketcher.Constraint("DistanceY", -1, 1, 21, 3, Q("33.605118 mm")))
sketch1.addConstraint(Sketcher.Constraint("DistanceX", -1, 1, 23, 3, Q("25.706416 mm")))
sketch1.addConstraint(Sketcher.Constraint("DistanceY", -1, 1, 12, 2, Q("40.084764 mm")))
sketch1.addConstraint(Sketcher.Constraint("DistanceY", -1, 1, 16, 2, Q("46.084764 mm")))
sketch1.setExpression("Constraints[133]", "Params.sketch1_diameter")
sketch1.setExpression("Constraints[134]", "Params.sketch1_radius")
sketch1.setExpression("Constraints[135]", "Params.sketch1_radius2")
sketch1.setExpression("Constraints[136]", "Params.sketch1_width")
sketch1.setExpression("Constraints[137]", "Params.sketch1_width2")
pad1 = body.newObject("PartDesign::Pad", "Pad")
pad1.Profile = sketch1
pad1.setExpression("Length", "Params.pad1_length")
pad1.Reversed = True

# Sketch on XZ plane
sketch2 = body.newObject("Sketcher::SketchObject", "Sketch001")
sketch2.AttachmentSupport = (doc.getObject("XZ_Plane"), [""])
sketch2.MapMode = "FlatFace"
sketch2.addGeometry(Part.Circle(App.Vector(-6.2, 22.5, 0), App.Vector(0, 0, 1), 0.8), False)
sketch2.addGeometry(Part.Circle(App.Vector(-6.2, -22.5, 0), App.Vector(0, 0, 1), 0.8), False)
sketch2.addConstraint(Sketcher.Constraint("Equal", 0, 1))
sketch2.addConstraint(Sketcher.Constraint("Symmetric", 0, 3, 1, 3, -1))
sketch2.addConstraint(Sketcher.Constraint("Diameter", 0, Q("1.6 mm")))
sketch2.addConstraint(Sketcher.Constraint("DistanceY", 1, 3, 0, 3, Q("45 mm")))
sketch2.addConstraint(Sketcher.Constraint("DistanceX", 0, 3, -1, 1, Q("6.25 mm")))
sketch2.setExpression("Constraints[2]", "Params.sketch2_diameter")
doc.recompute()
hole = body.newObject("PartDesign::Hole", "Hole")
hole.Profile = sketch2
hole.ThreadType = "None"
hole.setExpression("Diameter", "Params.hole_diameter")
hole.DepthType = "ThroughAll"

# Sketch on XZ plane
sketch3 = body.newObject("Sketcher::SketchObject", "Sketch002")
sketch3.AttachmentSupport = (doc.getObject("XZ_Plane"), [""])
sketch3.MapMode = "FlatFace"
sketch3.addGeometry(Part.ArcOfCircle(Part.Circle(App.Vector(36.9, -12, 0), App.Vector(0, 0, 1), 3), math.radians(-30), math.radians(30)), False)
sketch3.addGeometry(Part.LineSegment(App.Vector(39.5, -10.5, 0), App.Vector(36.9, -6, 0)), False)
sketch3.addGeometry(Part.LineSegment(App.Vector(36.9, -6, 0), App.Vector(36.9, -18, 0)), False)
sketch3.addGeometry(Part.LineSegment(App.Vector(36.9, -18, 0), App.Vector(39.5, -13.5, 0)), False)
sketch3.addGeometry(Part.ArcOfCircle(Part.Circle(App.Vector(36.9, 12, 0), App.Vector(0, 0, 1), 3), math.radians(-30), math.radians(30)), False)
sketch3.addGeometry(Part.LineSegment(App.Vector(39.5, 13.5, 0), App.Vector(36.9, 18, 0)), False)
sketch3.addGeometry(Part.LineSegment(App.Vector(36.9, 18, 0), App.Vector(36.9, 6, 0)), False)
sketch3.addGeometry(Part.LineSegment(App.Vector(36.9, 6, 0), App.Vector(39.5, 10.5, 0)), False)
sketch3.addConstraint(Sketcher.Constraint("Tangent", 0, 2, 1, 1))
sketch3.addConstraint(Sketcher.Constraint("Coincident", 1, 2, 2, 1))
sketch3.addConstraint(Sketcher.Constraint("Coincident", 2, 2, 3, 1))
sketch3.addConstraint(Sketcher.Constraint("Tangent", 3, 2, 0, 1))
sketch3.addConstraint(Sketcher.Constraint("Tangent", 4, 2, 5, 1))
sketch3.addConstraint(Sketcher.Constraint("Coincident", 5, 2, 6, 1))
sketch3.addConstraint(Sketcher.Constraint("Coincident", 6, 2, 7, 1))
sketch3.addConstraint(Sketcher.Constraint("Tangent", 7, 2, 4, 1))
sketch3.addConstraint(Sketcher.Constraint("Vertical", 2))
sketch3.addConstraint(Sketcher.Constraint("Vertical", 6))
sketch3.addConstraint(Sketcher.Constraint("Equal", 0, 4))
sketch3.addConstraint(Sketcher.Constraint("Symmetric", 0, 3, 4, 3, -1))
sketch3.addConstraint(Sketcher.Constraint("Symmetric", 2, 2, 5, 2, -1))
sketch3.addConstraint(Sketcher.Constraint("Parallel", 1, 5))
sketch3.addConstraint(Sketcher.Constraint("Parallel", 3, 7))
sketch3.addConstraint(Sketcher.Constraint("Vertical", 4, 3, 1, 2))
sketch3.addConstraint(Sketcher.Constraint("Radius", 0, Q("3 mm")))
sketch3.addConstraint(Sketcher.Constraint("DistanceY", 2, 2, 2, 1, Q("12 mm")))
sketch3.addConstraint(Sketcher.Constraint("DistanceY", 0, 3, -1, 1, Q("12 mm")))
sketch3.addConstraint(Sketcher.Constraint("DistanceX", -1, 1, 0, 3, Q("36.88333 mm")))
sketch3.setExpression("Constraints[16]", "Params.sketch3_radius")
sketch3.setExpression("Constraints[17]", "Params.sketch3_height")
pad2 = body.newObject("PartDesign::Pad", "Pad001")
pad2.Profile = sketch3
pad2.setExpression("Length", "Params.pad2_length")
pad2.Reversed = True
doc.recompute()

fillet = body.newObject("PartDesign::Fillet", "Fillet")
fillet.Base = (pad2, edges_at(pad2, [
    (32.633, 3, 4),
    (32.633, 3, -4),
    (26.633, 3, -4),
    (26.633, 3, 4),
]))
fillet.setExpression("Radius", "Params.fillet_radius")

# Sketch on XZ plane
sketch4 = body.newObject("Sketcher::SketchObject", "Sketch003")
sketch4.AttachmentSupport = (doc.getObject("XZ_Plane"), [""])
sketch4.MapMode = "FlatFace"
sketch4.AttachmentOffset = App.Placement(App.Vector(0, 0, -6), App.Rotation())
sketch4.addGeometry(Part.Circle(App.Vector(20.1, -12, 0), App.Vector(0, 0, 1), 1.1), False)
sketch4.addGeometry(Part.Circle(App.Vector(20.1, 12, 0), App.Vector(0, 0, 1), 1.1), False)
sketch4.addConstraint(Sketcher.Constraint("Equal", 0, 1))
sketch4.addConstraint(Sketcher.Constraint("Symmetric", 0, 3, 1, 3, -1))
sketch4.addConstraint(Sketcher.Constraint("Diameter", 0, Q("2.2 mm")))
sketch4.addConstraint(Sketcher.Constraint("DistanceY", 0, 3, -1, 1, Q("12 mm")))
sketch4.addConstraint(Sketcher.Constraint("DistanceX", -1, 1, 0, 3, Q("20.13333 mm")))
sketch4.setExpression("Constraints[2]", "Params.sketch4_diameter")
doc.recompute()
hole2 = body.newObject("PartDesign::Hole", "Hole001")
hole2.Profile = sketch4
hole2.ThreadType = "None"
hole2.setExpression("Diameter", "Params.hole2_diameter")
hole2.DepthType = "ThroughAll"
hole2.Reversed = True

# Sketch on XZ plane
sketch5 = body.newObject("Sketcher::SketchObject", "Sketch004")
sketch5.AttachmentSupport = (doc.getObject("XZ_Plane"), [""])
sketch5.MapMode = "FlatFace"
sketch5.AttachmentOffset = App.Placement(App.Vector(0, 0, -6), App.Rotation())
sketch5.addGeometry(Part.Circle(App.Vector(31.9, -12, 0), App.Vector(0, 0, 1), 2.2), False)
sketch5.addGeometry(Part.Circle(App.Vector(31.9, 12, 0), App.Vector(0, 0, 1), 2.2), False)
sketch5.addConstraint(Sketcher.Constraint("Equal", 0, 1))
sketch5.addConstraint(Sketcher.Constraint("Symmetric", 0, 3, 1, 3, -1))
sketch5.addConstraint(Sketcher.Constraint("Diameter", 0, Q("4.5 mm")))
sketch5.addConstraint(Sketcher.Constraint("DistanceY", 0, 3, -1, 1, Q("12 mm")))
sketch5.addConstraint(Sketcher.Constraint("DistanceX", -1, 1, 0, 3, Q("31.88333 mm")))
sketch5.setExpression("Constraints[2]", "Params.sketch5_diameter")
doc.recompute()
hole3 = body.newObject("PartDesign::Hole", "Hole002")
hole3.Profile = sketch5
hole3.ThreadType = "None"
hole3.setExpression("Diameter", "Params.hole3_diameter")
hole3.DepthType = "ThroughAll"
hole3.Reversed = True

doc.recompute()
